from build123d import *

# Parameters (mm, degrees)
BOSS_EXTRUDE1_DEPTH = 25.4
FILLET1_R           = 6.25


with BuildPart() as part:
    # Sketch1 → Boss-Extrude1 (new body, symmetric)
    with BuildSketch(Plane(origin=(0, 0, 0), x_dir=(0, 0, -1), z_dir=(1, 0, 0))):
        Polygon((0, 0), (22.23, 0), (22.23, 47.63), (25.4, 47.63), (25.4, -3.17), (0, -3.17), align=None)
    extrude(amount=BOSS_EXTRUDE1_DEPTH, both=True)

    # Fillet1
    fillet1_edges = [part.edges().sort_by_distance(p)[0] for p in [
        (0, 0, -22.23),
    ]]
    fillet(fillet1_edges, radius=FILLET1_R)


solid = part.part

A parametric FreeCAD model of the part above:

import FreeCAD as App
import Part
import Sketcher
Q = App.Units.Quantity


def edges_at(feature, points):
    """Names of the edges that pass closest to the given points."""
    edges = feature.Shape.Edges
    near = lambda p: min(range(len(edges)), key=lambda i: edges[i].distToShape(Part.Vertex(*p))[0])
    return sorted({f"Edge{near(p) + 1}" for p in points})


def add_polygon(sketch, points):
    """Adds a closed chain of lines whose ends are joined by coincident constraints."""
    first, n = sketch.GeometryCount, len(points)
    for a, b in zip(points, points[1:] + points[:1]):
        sketch.addGeometry(Part.LineSegment(App.Vector(*a, 0), App.Vector(*b, 0)), False)
    for i in range(n):
        sketch.addConstraint(Sketcher.Constraint("Coincident", first + i, 2, first + (i + 1) % n, 1))

doc = App.newDocument("Part")
params = doc.addObject("Spreadsheet::Sheet", "Params")
for row, (alias, value) in enumerate([
    ("sketch1_width", "2 in"),
    ("sketch1_height", "1 in"),
    ("pad1_length", "2 in"),
    ("fillet_radius", "6.25 mm"),
], start=1):
    params.set(f"A{row}", alias)
    params.set(f"B{row}", "=" + value)
    params.setAlias(f"B{row}", alias)

body = doc.addObject("PartDesign::Body", "Body")

# Sketch on YZ plane
sketch1 = body.newObject("Sketcher::SketchObject", "Sketch")
sketch1.AttachmentSupport = (doc.getObject("YZ_Plane"), [""])
sketch1.MapMode = "FlatFace"
add_polygon(sketch1, [(0, -22.2), (0, 0), (-3.2, 0), (-3.2, -25.4), (47.6, -25.4), (47.6, -22.2)])  # lines 0-5
sketch1.addConstraint([
    Sketcher.Constraint("Vertical", 0),
    Sketcher.Constraint("Horizontal", 1),
    Sketcher.Constraint("Vertical", 2),
    Sketcher.Constraint("Horizontal", 3),
    Sketcher.Constraint("Vertical", 4),
    Sketcher.Constraint("Horizontal", 5),
    Sketcher.Constraint("Coincident", 0, 2, -1, 1),
    Sketcher.Constraint("Equal", 1, 4),
    Sketcher.Constraint("DistanceX", 3, 1, 3, 2, Q("2 in")),
    Sketcher.Constraint("DistanceY", 2, 2, 2, 1, Q("1 in")),
    Sketcher.Constraint("DistanceX", 1, 2, 1, 1, Q("3.17 mm")),
])
sketch1.setExpression("Constraints[14]", "Params.sketch1_width")
sketch1.setExpression("Constraints[15]", "Params.sketch1_height")
pad1 = body.newObject("PartDesign::Pad", "Pad")
pad1.Profile = sketch1
pad1.setExpression("Length", "Params.pad1_length")
pad1.Midplane = True
doc.recompute()

fillet = body.newObject("PartDesign::Fillet", "Fillet")
fillet.Base = (pad1, edges_at(pad1, [(0, 0, -22.23)]))
fillet.setExpression("Radius", "Params.fillet_radius")

doc.recompute()
